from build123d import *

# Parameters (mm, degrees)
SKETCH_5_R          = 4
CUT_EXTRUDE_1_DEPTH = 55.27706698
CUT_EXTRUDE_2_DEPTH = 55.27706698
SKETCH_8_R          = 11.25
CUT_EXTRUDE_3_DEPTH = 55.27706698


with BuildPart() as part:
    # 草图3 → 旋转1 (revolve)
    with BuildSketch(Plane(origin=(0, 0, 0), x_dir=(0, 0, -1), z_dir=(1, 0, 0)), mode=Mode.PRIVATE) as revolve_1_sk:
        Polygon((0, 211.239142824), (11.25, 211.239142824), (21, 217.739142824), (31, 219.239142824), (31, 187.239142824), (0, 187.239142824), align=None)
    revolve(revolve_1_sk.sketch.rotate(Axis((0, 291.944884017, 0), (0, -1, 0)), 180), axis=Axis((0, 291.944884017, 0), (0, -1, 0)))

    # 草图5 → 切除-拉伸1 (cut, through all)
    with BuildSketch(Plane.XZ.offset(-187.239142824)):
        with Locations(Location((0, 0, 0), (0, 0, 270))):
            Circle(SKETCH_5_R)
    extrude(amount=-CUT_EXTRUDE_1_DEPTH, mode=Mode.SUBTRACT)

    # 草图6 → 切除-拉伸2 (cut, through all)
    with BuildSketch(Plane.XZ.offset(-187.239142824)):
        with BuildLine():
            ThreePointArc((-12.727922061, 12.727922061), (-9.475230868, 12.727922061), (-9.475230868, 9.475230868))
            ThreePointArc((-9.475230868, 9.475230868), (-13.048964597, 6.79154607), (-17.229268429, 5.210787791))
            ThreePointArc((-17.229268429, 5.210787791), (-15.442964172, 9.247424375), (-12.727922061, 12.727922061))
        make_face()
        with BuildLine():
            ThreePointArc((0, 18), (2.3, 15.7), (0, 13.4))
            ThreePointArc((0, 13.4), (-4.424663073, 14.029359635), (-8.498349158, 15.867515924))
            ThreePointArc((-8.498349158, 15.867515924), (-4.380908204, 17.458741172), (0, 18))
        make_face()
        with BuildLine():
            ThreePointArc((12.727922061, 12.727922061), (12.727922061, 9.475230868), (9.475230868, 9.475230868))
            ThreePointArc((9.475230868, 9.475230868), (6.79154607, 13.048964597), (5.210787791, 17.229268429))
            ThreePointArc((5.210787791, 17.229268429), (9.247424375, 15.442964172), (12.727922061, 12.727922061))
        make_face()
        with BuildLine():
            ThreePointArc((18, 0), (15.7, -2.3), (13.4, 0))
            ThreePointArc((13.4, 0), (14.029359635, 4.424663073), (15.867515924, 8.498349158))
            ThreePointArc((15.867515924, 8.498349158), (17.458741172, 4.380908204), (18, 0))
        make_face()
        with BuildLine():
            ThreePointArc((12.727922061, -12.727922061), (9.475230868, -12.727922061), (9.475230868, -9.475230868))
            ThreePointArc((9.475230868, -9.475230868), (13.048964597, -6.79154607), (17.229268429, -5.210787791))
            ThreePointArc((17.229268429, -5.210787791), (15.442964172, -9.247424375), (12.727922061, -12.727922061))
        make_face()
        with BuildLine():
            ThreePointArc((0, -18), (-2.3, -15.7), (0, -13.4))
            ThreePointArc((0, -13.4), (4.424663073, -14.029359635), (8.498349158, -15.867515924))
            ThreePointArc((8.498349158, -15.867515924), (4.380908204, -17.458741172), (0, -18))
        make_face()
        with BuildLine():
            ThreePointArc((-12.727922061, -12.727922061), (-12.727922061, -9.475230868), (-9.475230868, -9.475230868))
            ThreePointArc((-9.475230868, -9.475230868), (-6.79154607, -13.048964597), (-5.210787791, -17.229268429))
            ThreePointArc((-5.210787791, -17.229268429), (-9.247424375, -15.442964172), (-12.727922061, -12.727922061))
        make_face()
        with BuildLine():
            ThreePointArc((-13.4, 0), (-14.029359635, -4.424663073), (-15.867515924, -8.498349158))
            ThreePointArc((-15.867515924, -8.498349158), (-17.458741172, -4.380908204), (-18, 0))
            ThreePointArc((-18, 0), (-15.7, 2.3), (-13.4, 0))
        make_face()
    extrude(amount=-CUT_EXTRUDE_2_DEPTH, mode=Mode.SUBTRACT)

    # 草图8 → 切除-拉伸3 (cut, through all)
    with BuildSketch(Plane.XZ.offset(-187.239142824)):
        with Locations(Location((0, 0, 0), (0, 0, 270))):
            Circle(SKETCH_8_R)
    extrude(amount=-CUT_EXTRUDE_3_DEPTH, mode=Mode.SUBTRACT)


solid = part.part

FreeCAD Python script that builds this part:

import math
import FreeCAD as App
import Part
import Sketcher
Q = App.Units.Quantity


def add_polygon(sketch, points):
    """Adds a closed chain of lines whose ends are joined by coincident constraints."""
    first, n = sketch.GeometryCount, len(points)
    for a, b in zip(points, points[1:] + points[:1]):
        sketch.addGeometry(Part.LineSegment(App.Vector(*a, 0), App.Vector(*b, 0)), False)
    for i in range(n):
        sketch.addConstraint(Sketcher.Constraint("Coincident", first + i, 2, first + (i + 1) % n, 1))

doc = App.newDocument("Part")
body = doc.addObject("PartDesign::Body", "Body")

# Sketch on YZ plane
sketch1 = doc.addObject("Sketcher::SketchObject", "Sketch")
body.addObject(sketch1)
sketch1.AttachmentSupport = (doc.YZ_Plane, [""])
sketch1.MapMode = "FlatFace"
add_polygon(sketch1, [(211, -11), (211, 0), (187, 0), (187, -31), (219, -31), (218, -21)])  # lines 0-5
sketch1.addConstraint([
    Sketcher.Constraint("Vertical", 0),
    Sketcher.Constraint("Horizontal", 1),
    Sketcher.Constraint("Vertical", 2),
    Sketcher.Constraint("Horizontal", 3),
    Sketcher.Constraint("PointOnObject", 0, 2, -1),
    Sketcher.Constraint("DistanceX", 1, 2, 1, 1, Q("24 mm")),
    Sketcher.Constraint("DistanceX", 3, 1, 3, 2, Q("32 mm")),
    Sketcher.Constraint("DistanceY", 2, 2, 2, 1, Q("31 mm")),
    Sketcher.Constraint("DistanceY", 4, 2, -1, 1, Q("21 mm")),
    Sketcher.Constraint("DistanceY", 0, 1, 0, 2, Q("11.25 mm")),
    Sketcher.Constraint("DistanceX", 4, 2, 3, 2, Q("1.5 mm")),
    Sketcher.Constraint("DistanceX", -1, 1, 0, 2, Q("211.239143 mm")),
])
revolution = doc.addObject("PartDesign::Revolution", "Revolution")
body.addObject(revolution)
revolution.Profile = sketch1
revolution.ReferenceAxis = (sketch1, ["H_Axis"])
revolution.Angle = 360

# Sketch on XZ plane
sketch2 = doc.addObject("Sketcher::SketchObject", "Sketch001")
body.addObject(sketch2)
sketch2.AttachmentSupport = (doc.XZ_Plane, [""])
sketch2.MapMode = "FlatFace"
sketch2.AttachmentOffset = App.Placement(App.Vector(0, 0, -187.239143), App.Rotation())
sketch2.addGeometry(Part.Circle(App.Vector(0, 0, 0), App.Vector(0, 0, 1), 4), False)
sketch2.addConstraint([
    Sketcher.Constraint("Coincident", 0, 3, -1, 1),
    Sketcher.Constraint("Diameter", 0, Q("8 mm")),
])
pocket1 = doc.addObject("PartDesign::Pocket", "Pocket")
body.addObject(pocket1)
pocket1.Profile = sketch2
pocket1.Type = "ThroughAll"

# Sketch on XZ plane
sketch3 = doc.addObject("Sketcher::SketchObject", "Sketch002")
body.addObject(sketch3)
sketch3.AttachmentSupport = (doc.XZ_Plane, [""])
sketch3.MapMode = "FlatFace"
sketch3.AttachmentOffset = App.Placement(App.Vector(0, 0, -187.239143), App.Rotation())
sketch3.addGeometry([
    Part.ArcOfCircle(Part.Circle(App.Vector(-11.1, 11.1, 0), App.Vector(0, 0, 1), 2.3), math.radians(-45), math.radians(135)),  # 0
    Part.ArcOfCircle(Part.Circle(App.Vector(0, 0, 0), App.Vector(0, 0, 1), 18), math.radians(135), math.radians(163)),  # 1
    Part.ArcOfCircle(Part.Circle(App.Vector(-20.7, 20.7, 0), App.Vector(0, 0, 1), 15.9), math.radians(-77), math.radians(-45)),  # 2
    Part.ArcOfCircle(Part.Circle(App.Vector(0, 15.7, 0), App.Vector(0, 0, 1), 2.3), math.radians(-90), math.radians(90)),  # 3
    Part.ArcOfCircle(Part.Circle(App.Vector(0, 0, 0), App.Vector(0, 0, 1), 18), math.radians(90), math.radians(118)),  # 4
    Part.ArcOfCircle(Part.Circle(App.Vector(0, 29.3, 0), App.Vector(0, 0, 1), 15.9), math.radians(-122), math.radians(-90)),  # 5
    Part.ArcOfCircle(Part.Circle(App.Vector(11.1, 11.1, 0), App.Vector(0, 0, 1), 2.3), math.radians(-135), math.radians(45)),  # 6
    Part.ArcOfCircle(Part.Circle(App.Vector(0, 0, 0), App.Vector(0, 0, 1), 18), math.radians(45), math.radians(73)),  # 7
    Part.ArcOfCircle(Part.Circle(App.Vector(20.7, 20.7, 0), App.Vector(0, 0, 1), 15.9), math.radians(-167), math.radians(-135)),  # 8
    Part.ArcOfCircle(Part.Circle(App.Vector(15.7, 0, 0), App.Vector(0, 0, 1), 2.3), math.radians(180), math.radians(360)),  # 9
    Part.ArcOfCircle(Part.Circle(App.Vector(0, 0, 0), App.Vector(0, 0, 1), 18), math.radians(0), math.radians(28)),  # 10
    Part.ArcOfCircle(Part.Circle(App.Vector(29.3, 0, 0), App.Vector(0, 0, 1), 15.9), math.radians(148), math.radians(180)),  # 11
    Part.ArcOfCircle(Part.Circle(App.Vector(11.1, -11.1, 0), App.Vector(0, 0, 1), 2.3), math.radians(135), math.radians(315)),  # 12
    Part.ArcOfCircle(Part.Circle(App.Vector(0, 0, 0), App.Vector(0, 0, 1), 18), math.radians(-45), math.radians(-17)),  # 13
    Part.ArcOfCircle(Part.Circle(App.Vector(20.7, -20.7, 0), App.Vector(0, 0, 1), 15.9), math.radians(103), math.radians(135)),  # 14
    Part.ArcOfCircle(Part.Circle(App.Vector(0, -15.7, 0), App.Vector(0, 0, 1), 2.3), math.radians(90), math.radians(270)),  # 15
    Part.ArcOfCircle(Part.Circle(App.Vector(0, 0, 0), App.Vector(0, 0, 1), 18), math.radians(-90), math.radians(-62)),  # 16
    Part.ArcOfCircle(Part.Circle(App.Vector(0, -29.3, 0), App.Vector(0, 0, 1), 15.9), math.radians(58), math.radians(90)),  # 17
    Part.ArcOfCircle(Part.Circle(App.Vector(-11.1, -11.1, 0), App.Vector(0, 0, 1), 2.3), math.radians(45), math.radians(225)),  # 18
    Part.ArcOfCircle(Part.Circle(App.Vector(0, 0, 0), App.Vector(0, 0, 1), 18), math.radians(-135), math.radians(-107)),  # 19
    Part.ArcOfCircle(Part.Circle(App.Vector(-20.7, -20.7, 0), App.Vector(0, 0, 1), 15.9), math.radians(13), math.radians(45)),  # 20
    Part.ArcOfCircle(Part.Circle(App.Vector(-29.3, 0, 0), App.Vector(0, 0, 1), 15.9), math.radians(-32), math.radians(0)),  # 21
    Part.ArcOfCircle(Part.Circle(App.Vector(-15.7, 0, 0), App.Vector(0, 0, 1), 2.3), math.radians(0), math.radians(180)),  # 22
    Part.ArcOfCircle(Part.Circle(App.Vector(0, 0, 0), App.Vector(0, 0, 1), 18), math.radians(180), math.radians(208)),  # 23
], False)
sketch3.addConstraint([
    Sketcher.Constraint("Tangent", 0, 2, 1, 1),
    Sketcher.Constraint("Coincident", 1, 2, 2, 1),
    Sketcher.Constraint("Tangent", 2, 2, 0, 1),
    Sketcher.Constraint("Tangent", 3, 2, 4, 1),
    Sketcher.Constraint("Coincident", 4, 2, 5, 1),
    Sketcher.Constraint("Tangent", 5, 2, 3, 1),
    Sketcher.Constraint("Tangent", 6, 2, 7, 1),
    Sketcher.Constraint("Coincident", 7, 2, 8, 1),
    Sketcher.Constraint("Tangent", 8, 2, 6, 1),
    Sketcher.Constraint("Tangent", 9, 2, 10, 1),
    Sketcher.Constraint("Coincident", 10, 2, 11, 1),
    Sketcher.Constraint("Tangent", 11, 2, 9, 1),
    Sketcher.Constraint("Tangent", 12, 2, 13, 1),
    Sketcher.Constraint("Coincident", 13, 2, 14, 1),
    Sketcher.Constraint("Tangent", 14, 2, 12, 1),
    Sketcher.Constraint("Tangent", 15, 2, 16, 1),
    Sketcher.Constraint("Coincident", 16, 2, 17, 1),
    Sketcher.Constraint("Tangent", 17, 2, 15, 1),
    Sketcher.Constraint("Tangent", 18, 2, 19, 1),
    Sketcher.Constraint("Coincident", 19, 2, 20, 1),
    Sketcher.Constraint("Tangent", 20, 2, 18, 1),
    Sketcher.Constraint("Tangent", 21, 2, 22, 1),
    Sketcher.Constraint("Tangent", 22, 2, 23, 1),
    Sketcher.Constraint("Coincident", 23, 2, 21, 1),
    Sketcher.Constraint("Coincident", 1, 3, -1, 1),
    Sketcher.Constraint("Coincident", 4, 3, -1, 1),
    Sketcher.Constraint("Coincident", 7, 3, -1, 1),
    Sketcher.Constraint("Coincident", 10, 3, -1, 1),
    Sketcher.Constraint("Coincident", 13, 3, -1, 1),
    Sketcher.Constraint("Coincident", 16, 3, -1, 1),
    Sketcher.Constraint("Coincident", 19, 3, -1, 1),
    Sketcher.Constraint("Coincident", 23, 3, -1, 1),
    Sketcher.Constraint("Equal", 0, 3),
    Sketcher.Constraint("Equal", 1, 4),
    Sketcher.Constraint("Equal", 2, 5),
    Sketcher.Constraint("Equal", 3, 6),
    Sketcher.Constraint("Equal", 4, 7),
    Sketcher.Constraint("Equal", 5, 8),
    Sketcher.Constraint("Equal", 6, 9),
    Sketcher.Constraint("Equal", 7, 10),
    Sketcher.Constraint("Equal", 8, 11),
    Sketcher.Constraint("Equal", 9, 12),
    Sketcher.Constraint("Equal", 10, 13),
    Sketcher.Constraint("Equal", 11, 14),
    Sketcher.Constraint("Equal", 12, 15),
    Sketcher.Constraint("Equal", 13, 16),
    Sketcher.Constraint("Equal", 14, 17),
    Sketcher.Constraint("Equal", 15, 18),
    Sketcher.Constraint("Equal", 16, 19),
    Sketcher.Constraint("Equal", 17, 20),
    Sketcher.Constraint("Equal", 20, 21),
    Sketcher.Constraint("Equal", 18, 22),
    Sketcher.Constraint("Equal", 19, 23),
    Sketcher.Constraint("PointOnObject", 3, 3, -2),
    Sketcher.Constraint("PointOnObject", 5, 3, -2),
    Sketcher.Constraint("PointOnObject", 9, 3, -1),
    Sketcher.Constraint("PointOnObject", 11, 3, -1),
    Sketcher.Constraint("PointOnObject", 15, 3, -2),
    Sketcher.Constraint("PointOnObject", 17, 3, -2),
    Sketcher.Constraint("PointOnObject", 21, 3, -1),
    Sketcher.Constraint("PointOnObject", 22, 3, -1),
    Sketcher.Constraint("Horizontal", 0, 3, 6, 3),
    Sketcher.Constraint("Horizontal", 2, 3, 8, 3),
    Sketcher.Constraint("Horizontal", 12, 3, 18, 3),
    Sketcher.Constraint("Horizontal", 14, 3, 20, 3),
    Sketcher.Constraint("Vertical", 6, 3, 12, 3),
    Sketcher.Constraint("Vertical", 8, 3, 14, 3),
    Sketcher.Constraint("Radius", 1, Q("18 mm")),
    Sketcher.Constraint("Radius", 0, Q("2.3 mm")),
    Sketcher.Constraint("Radius", 2, Q("15.868302 mm")),
    Sketcher.Constraint("DistanceX", 1, 2, -1, 1, Q("17.229268 mm")),
    Sketcher.Constraint("DistanceX", 2, 2, -1, 1, Q("9.475231 mm")),
])
pocket2 = doc.addObject("PartDesign::Pocket", "Pocket001")
body.addObject(pocket2)
pocket2.Profile = sketch3
pocket2.Type = "ThroughAll"

# Sketch on XZ plane
sketch4 = doc.addObject("Sketcher::SketchObject", "Sketch003")
body.addObject(sketch4)
sketch4.AttachmentSupport = (doc.XZ_Plane, [""])
sketch4.MapMode = "FlatFace"
sketch4.AttachmentOffset = App.Placement(App.Vector(0, 0, -187.239143), App.Rotation())
sketch4.addGeometry(Part.Circle(App.Vector(0, 0, 0), App.Vector(0, 0, 1), 11), False)
sketch4.addConstraint([
    Sketcher.Constraint("Coincident", 0, 3, -1, 1),
    Sketcher.Constraint("Diameter", 0, Q("22.5 mm")),
])
pocket3 = doc.addObject("PartDesign::Pocket", "Pocket002")
body.addObject(pocket3)
pocket3.Profile = sketch4
pocket3.Type = "ThroughAll"

doc.recompute()
